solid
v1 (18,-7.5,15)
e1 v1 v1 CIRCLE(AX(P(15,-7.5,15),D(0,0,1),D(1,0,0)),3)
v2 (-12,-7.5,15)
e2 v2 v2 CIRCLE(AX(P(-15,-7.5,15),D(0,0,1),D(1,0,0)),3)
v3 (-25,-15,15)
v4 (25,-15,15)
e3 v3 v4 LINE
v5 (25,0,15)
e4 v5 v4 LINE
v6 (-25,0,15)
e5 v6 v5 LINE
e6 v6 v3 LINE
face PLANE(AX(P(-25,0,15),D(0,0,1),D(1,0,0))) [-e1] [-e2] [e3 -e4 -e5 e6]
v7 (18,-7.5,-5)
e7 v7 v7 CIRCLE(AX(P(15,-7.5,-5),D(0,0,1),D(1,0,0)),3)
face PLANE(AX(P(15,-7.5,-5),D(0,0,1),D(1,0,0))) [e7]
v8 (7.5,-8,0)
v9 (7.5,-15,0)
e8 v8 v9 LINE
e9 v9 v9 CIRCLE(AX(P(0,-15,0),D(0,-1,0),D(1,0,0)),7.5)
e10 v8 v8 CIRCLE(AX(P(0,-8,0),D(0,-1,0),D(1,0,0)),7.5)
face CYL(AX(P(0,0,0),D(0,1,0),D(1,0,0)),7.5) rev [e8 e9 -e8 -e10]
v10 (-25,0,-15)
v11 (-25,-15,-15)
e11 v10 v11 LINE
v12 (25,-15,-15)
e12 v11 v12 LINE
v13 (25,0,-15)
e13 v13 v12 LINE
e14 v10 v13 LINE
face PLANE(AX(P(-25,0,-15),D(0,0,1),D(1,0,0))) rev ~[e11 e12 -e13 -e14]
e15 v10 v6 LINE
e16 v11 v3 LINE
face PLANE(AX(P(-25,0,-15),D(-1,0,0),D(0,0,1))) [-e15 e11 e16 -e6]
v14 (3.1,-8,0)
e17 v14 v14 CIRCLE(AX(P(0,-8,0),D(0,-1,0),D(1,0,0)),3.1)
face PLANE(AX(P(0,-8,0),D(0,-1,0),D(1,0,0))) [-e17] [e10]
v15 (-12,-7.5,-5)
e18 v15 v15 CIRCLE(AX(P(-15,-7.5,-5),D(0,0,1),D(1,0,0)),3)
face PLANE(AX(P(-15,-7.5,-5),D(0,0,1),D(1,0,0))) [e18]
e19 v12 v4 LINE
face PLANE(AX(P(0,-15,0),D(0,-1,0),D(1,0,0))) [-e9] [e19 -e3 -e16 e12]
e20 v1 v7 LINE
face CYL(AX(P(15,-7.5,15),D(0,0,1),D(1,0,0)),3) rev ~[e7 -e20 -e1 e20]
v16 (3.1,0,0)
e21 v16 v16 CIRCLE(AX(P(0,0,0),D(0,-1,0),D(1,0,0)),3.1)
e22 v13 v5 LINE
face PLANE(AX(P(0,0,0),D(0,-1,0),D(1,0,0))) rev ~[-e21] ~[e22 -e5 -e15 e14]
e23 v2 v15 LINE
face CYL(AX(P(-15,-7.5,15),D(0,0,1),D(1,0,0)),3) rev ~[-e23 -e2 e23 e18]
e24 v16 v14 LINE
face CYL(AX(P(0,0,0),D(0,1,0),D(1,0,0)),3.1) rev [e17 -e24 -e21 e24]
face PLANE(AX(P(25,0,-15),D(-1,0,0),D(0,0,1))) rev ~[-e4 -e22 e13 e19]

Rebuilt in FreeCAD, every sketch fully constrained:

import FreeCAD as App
import Part
import Sketcher

V = App.Vector
Q = App.Units.Quantity


def add_polygon(sketch, points):
    """Adds a closed chain of lines whose ends are joined by coincident constraints."""
    first, n = sketch.GeometryCount, len(points)
    for a, b in zip(points, points[1:] + points[:1]):
        sketch.addGeometry(Part.LineSegment(App.Vector(*a, 0), App.Vector(*b, 0)), False)
    for i in range(n):
        sketch.addConstraint(Sketcher.Constraint("Coincident", first + i, 2, first + (i + 1) % n, 1))

doc = App.newDocument("Part")
body = doc.addObject("PartDesign::Body", "Body")

sketch1 = body.newObject("Sketcher::SketchObject", "Sketch")
sketch1.AttachmentSupport = (doc.getObject("XZ_Plane"), [""])
sketch1.MapMode = "FlatFace"
add_polygon(sketch1, [(-25, 15), (-25, -15), (25, -15), (25, 15)])
sketch1.addGeometry(Part.Circle(V(0, 0, 0), V(0, 0, 1), 8), False)
sketch1.addConstraint(Sketcher.Constraint("Vertical", 0))
sketch1.addConstraint(Sketcher.Constraint("Horizontal", 1))
sketch1.addConstraint(Sketcher.Constraint("Vertical", 2))
sketch1.addConstraint(Sketcher.Constraint("Horizontal", 3))
sketch1.addConstraint(Sketcher.Constraint("Coincident", 4, 3, -1, 1))
sketch1.addConstraint(Sketcher.Constraint("Symmetric", 0, 2, 2, 2, -1, 1))
sketch1.addConstraint(Sketcher.Constraint("Diameter", 4, Q("15 mm")))
sketch1.addConstraint(Sketcher.Constraint("DistanceX", 1, 1, 1, 2, Q("50 mm")))
sketch1.addConstraint(Sketcher.Constraint("DistanceY", 0, 2, 0, 1, Q("30 mm")))
pad1 = body.newObject("PartDesign::Pad", "Pad")
pad1.Profile = sketch1
pad1.Length = 15

sketch2 = body.newObject("Sketcher::SketchObject", "Sketch001")
sketch2.AttachmentSupport = (doc.getObject("XZ_Plane"), [""])
sketch2.MapMode = "FlatFace"
sketch2.addGeometry(Part.Circle(V(0, 0, 0), V(0, 0, 1), 7.5), False)
sketch2.addGeometry(Part.Circle(V(0, 0, 0), V(0, 0, 1), 3.1), False)
sketch2.addConstraint(Sketcher.Constraint("Coincident", 0, 3, -1, 1))
sketch2.addConstraint(Sketcher.Constraint("Coincident", 1, 3, -1, 1))
sketch2.addConstraint(Sketcher.Constraint("Diameter", 0, Q("15 mm")))
sketch2.addConstraint(Sketcher.Constraint("Diameter", 1, Q("6.2 mm")))
pad2 = body.newObject("PartDesign::Pad", "Pad001")
pad2.Profile = sketch2
pad2.Length = 8

sketch3 = body.newObject("Sketcher::SketchObject", "Sketch002")
sketch3.AttachmentSupport = (doc.getObject("XY_Plane"), [""])
sketch3.MapMode = "FlatFace"
sketch3.AttachmentOffset = App.Placement(V(0, 0, 15), App.Rotation())
sketch3.addGeometry(Part.Circle(V(-15, -7.5, 0), V(0, 0, 1), 3), False)
sketch3.addGeometry(Part.Circle(V(15, -7.5, 0), V(0, 0, 1), 3), False)
sketch3.addConstraint(Sketcher.Constraint("Equal", 0, 1))
sketch3.addConstraint(Sketcher.Constraint("Symmetric", 0, 3, 1, 3, -2))
sketch3.addConstraint(Sketcher.Constraint("Diameter", 0, Q("6 mm")))
sketch3.addConstraint(Sketcher.Constraint("DistanceX", 0, 3, -1, 1, Q("15 mm")))
sketch3.addConstraint(Sketcher.Constraint("DistanceY", 0, 3, -1, 1, Q("7.5 mm")))
pocket1 = body.newObject("PartDesign::Pocket", "Pocket")
pocket1.Profile = sketch3
pocket1.Length = 20

doc.recompute()
